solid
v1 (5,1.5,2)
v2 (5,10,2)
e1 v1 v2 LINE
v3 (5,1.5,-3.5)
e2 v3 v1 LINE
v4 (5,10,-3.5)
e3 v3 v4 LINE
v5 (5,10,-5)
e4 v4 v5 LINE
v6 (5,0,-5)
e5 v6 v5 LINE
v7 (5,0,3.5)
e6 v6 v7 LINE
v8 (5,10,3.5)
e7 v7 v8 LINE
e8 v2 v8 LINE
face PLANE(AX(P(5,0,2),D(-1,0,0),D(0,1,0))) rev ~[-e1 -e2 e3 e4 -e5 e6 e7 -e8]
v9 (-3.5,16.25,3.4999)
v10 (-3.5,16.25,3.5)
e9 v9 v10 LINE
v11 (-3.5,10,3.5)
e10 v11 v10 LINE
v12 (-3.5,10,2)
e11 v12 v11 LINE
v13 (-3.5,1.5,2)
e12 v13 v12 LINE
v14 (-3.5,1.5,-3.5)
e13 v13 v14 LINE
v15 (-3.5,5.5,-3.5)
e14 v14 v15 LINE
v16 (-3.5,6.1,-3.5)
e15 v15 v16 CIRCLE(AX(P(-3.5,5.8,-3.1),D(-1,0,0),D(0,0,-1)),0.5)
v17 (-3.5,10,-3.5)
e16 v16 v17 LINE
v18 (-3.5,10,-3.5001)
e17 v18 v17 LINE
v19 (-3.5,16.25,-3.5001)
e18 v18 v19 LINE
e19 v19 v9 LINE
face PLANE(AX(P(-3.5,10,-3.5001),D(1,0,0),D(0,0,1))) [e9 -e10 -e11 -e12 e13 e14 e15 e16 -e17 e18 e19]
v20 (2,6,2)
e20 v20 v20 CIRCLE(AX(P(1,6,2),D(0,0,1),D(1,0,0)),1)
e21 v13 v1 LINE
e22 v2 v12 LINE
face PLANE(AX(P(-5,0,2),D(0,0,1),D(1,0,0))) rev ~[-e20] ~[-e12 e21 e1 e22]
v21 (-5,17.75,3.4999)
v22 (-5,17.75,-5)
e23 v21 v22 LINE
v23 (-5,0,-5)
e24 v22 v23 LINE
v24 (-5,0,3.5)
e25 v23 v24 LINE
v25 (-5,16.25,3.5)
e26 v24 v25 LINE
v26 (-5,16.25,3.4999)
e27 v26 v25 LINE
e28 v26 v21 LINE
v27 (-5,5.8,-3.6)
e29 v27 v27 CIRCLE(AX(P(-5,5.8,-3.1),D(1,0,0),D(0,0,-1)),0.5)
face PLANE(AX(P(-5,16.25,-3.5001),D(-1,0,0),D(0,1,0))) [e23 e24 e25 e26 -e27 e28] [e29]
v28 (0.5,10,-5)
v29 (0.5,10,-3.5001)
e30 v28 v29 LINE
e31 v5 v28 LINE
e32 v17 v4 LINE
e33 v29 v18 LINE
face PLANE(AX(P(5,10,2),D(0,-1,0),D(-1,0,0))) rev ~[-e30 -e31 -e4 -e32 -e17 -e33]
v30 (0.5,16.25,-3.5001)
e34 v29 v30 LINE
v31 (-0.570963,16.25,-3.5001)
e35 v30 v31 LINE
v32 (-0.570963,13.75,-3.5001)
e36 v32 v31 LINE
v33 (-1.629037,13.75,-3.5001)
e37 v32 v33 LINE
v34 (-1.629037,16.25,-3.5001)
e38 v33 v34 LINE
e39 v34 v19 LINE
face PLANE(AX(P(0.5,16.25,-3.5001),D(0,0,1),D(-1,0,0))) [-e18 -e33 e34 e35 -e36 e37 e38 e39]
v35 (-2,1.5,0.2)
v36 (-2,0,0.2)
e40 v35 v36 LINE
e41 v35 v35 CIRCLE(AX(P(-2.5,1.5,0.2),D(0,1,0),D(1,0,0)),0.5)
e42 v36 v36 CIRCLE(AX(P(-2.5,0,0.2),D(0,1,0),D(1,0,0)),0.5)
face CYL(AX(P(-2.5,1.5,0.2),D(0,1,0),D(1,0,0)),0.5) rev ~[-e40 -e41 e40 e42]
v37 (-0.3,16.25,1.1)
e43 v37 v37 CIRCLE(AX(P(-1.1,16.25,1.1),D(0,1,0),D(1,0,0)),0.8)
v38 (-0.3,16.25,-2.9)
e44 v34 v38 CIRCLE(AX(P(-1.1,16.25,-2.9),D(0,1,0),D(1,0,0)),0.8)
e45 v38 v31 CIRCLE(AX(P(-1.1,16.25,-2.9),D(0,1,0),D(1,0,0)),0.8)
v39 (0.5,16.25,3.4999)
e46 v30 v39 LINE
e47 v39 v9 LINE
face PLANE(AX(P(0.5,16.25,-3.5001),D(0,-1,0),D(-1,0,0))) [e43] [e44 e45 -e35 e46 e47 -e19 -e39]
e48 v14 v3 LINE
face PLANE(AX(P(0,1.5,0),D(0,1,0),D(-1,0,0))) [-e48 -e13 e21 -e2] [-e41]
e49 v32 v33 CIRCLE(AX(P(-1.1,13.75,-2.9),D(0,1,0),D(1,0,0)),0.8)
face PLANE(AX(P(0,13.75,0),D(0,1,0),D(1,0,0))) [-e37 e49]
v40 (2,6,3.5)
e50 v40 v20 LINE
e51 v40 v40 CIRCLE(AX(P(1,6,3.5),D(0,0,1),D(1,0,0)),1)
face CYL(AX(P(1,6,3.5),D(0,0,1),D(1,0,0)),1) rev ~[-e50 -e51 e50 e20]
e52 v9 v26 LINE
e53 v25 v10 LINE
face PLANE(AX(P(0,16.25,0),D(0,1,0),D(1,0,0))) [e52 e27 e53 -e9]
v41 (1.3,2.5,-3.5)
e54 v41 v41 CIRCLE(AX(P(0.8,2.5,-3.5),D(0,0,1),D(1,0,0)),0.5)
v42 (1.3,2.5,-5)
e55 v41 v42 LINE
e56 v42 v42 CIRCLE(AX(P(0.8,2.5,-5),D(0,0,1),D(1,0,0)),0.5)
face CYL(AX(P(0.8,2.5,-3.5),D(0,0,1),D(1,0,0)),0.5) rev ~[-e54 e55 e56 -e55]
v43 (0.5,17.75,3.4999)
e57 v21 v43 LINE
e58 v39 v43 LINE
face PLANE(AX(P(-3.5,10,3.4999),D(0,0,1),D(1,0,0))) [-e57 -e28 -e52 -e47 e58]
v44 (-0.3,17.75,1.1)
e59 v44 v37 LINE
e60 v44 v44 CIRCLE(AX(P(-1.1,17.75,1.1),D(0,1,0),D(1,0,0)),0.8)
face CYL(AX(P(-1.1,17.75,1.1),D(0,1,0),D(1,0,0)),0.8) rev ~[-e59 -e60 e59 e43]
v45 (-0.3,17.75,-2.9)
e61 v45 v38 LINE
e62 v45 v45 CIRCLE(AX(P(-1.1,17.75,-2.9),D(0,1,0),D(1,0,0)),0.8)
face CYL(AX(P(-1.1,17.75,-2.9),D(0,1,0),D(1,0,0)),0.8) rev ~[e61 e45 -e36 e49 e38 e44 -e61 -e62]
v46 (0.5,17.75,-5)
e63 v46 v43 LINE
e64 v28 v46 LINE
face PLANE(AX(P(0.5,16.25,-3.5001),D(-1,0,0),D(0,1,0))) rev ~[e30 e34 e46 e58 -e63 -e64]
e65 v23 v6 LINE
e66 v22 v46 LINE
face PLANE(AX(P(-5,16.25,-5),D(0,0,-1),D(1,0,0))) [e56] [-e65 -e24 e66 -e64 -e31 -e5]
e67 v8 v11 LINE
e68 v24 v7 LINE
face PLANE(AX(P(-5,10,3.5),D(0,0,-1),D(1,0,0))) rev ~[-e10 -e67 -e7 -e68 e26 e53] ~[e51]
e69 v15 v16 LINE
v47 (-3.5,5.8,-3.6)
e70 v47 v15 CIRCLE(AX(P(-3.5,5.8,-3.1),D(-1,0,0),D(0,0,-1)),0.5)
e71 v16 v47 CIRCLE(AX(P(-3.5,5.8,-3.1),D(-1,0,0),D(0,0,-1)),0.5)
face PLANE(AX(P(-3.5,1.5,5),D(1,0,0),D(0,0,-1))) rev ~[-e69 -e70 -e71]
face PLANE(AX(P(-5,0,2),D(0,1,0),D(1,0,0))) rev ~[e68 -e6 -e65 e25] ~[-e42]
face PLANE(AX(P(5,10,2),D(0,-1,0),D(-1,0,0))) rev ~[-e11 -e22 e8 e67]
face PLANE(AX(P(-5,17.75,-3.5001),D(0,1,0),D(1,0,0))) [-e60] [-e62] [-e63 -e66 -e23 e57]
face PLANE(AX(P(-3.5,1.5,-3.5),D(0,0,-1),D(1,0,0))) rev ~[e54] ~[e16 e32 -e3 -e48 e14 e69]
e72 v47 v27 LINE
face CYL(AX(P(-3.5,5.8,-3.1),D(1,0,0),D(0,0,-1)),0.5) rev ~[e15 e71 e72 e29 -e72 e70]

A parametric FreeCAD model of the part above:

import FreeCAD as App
import Part
import Sketcher

V = App.Vector
Q = App.Units.Quantity


def add_polygon(sketch, points):
    """Adds a closed chain of lines whose ends are joined by coincident constraints."""
    first, n = sketch.GeometryCount, len(points)
    for a, b in zip(points, points[1:] + points[:1]):
        sketch.addGeometry(Part.LineSegment(App.Vector(*a, 0), App.Vector(*b, 0)), False)
    for i in range(n):
        sketch.addConstraint(Sketcher.Constraint("Coincident", first + i, 2, first + (i + 1) % n, 1))

doc = App.newDocument("Part")
params = doc.addObject("Spreadsheet::Sheet", "Params")
for row, (alias, value) in enumerate([
    ("sketch1_width", "10 mm"),
    ("pad1_length", "1.5 mm"),
    ("sketch2_width", "10 mm"),
    ("sketch2_width2", "1.5 mm"),
    ("pad2_length", "8.5 mm"),
    ("sketch3_diameter", "1 mm"),
    ("pocket1_length", "8.5 mm"),
    ("sketch4_diameter", "1 mm"),
    ("pocket2_length", "8.5 mm"),
    ("sketch5_diameter", "1 mm"),
    ("pocket3_length", "10 mm"),
    ("sketch6_diameter", "1 mm"),
    ("pocket4_length", "2 mm"),
    ("sketch7_width", "10 mm"),
    ("pocket5_length", "3 mm"),
    ("sketch8_width", "10 mm"),
    ("pad3_length", "1.5 mm"),
    ("sketch9_diameter", "2 mm"),
    ("pocket6_length", "1.5 mm"),
    ("sketch10_width", "5.5 mm"),
    ("sketch10_width2", "1.5 mm"),
    ("sketch10_height", "7 mm"),
    ("pad4_length", "6.25 mm"),
    ("sketch11_width", "5.5 mm"),
    ("sketch11_height", "1.5 mm"),
    ("pad5_length", "1.5 mm"),
    ("sketch12_height", "1.5 mm"),
    ("sketch12_width", "5.5 mm"),
    ("pad6_length", "7 mm"),
    ("sketch13_diameter", "1.6 mm"),
    ("pocket7_length", "2 mm"),
    ("sketch14_diameter", "1.6 mm"),
    ("pocket8_length", "4 mm"),
], start=1):
    params.set(f"A{row}", alias)
    params.set(f"B{row}", "=" + value)
    params.setAlias(f"B{row}", alias)

body = doc.addObject("PartDesign::Body", "Body")

# Sketch on XZ plane
sketch1 = body.newObject("Sketcher::SketchObject", "Sketch")
sketch1.AttachmentSupport = (doc.getObject("XZ_Plane"), [""])
sketch1.MapMode = "FlatFace"
add_polygon(sketch1, [(-5, 5), (5, 5), (5, -5), (-5, -5)])  # lines 0-3
sketch1.addConstraint(Sketcher.Constraint("Horizontal", 0))
sketch1.addConstraint(Sketcher.Constraint("Vertical", 1))
sketch1.addConstraint(Sketcher.Constraint("Horizontal", 2))
sketch1.addConstraint(Sketcher.Constraint("Vertical", 3))
sketch1.addConstraint(Sketcher.Constraint("Symmetric", 0, 2, 2, 2, -1, 1))
sketch1.addConstraint(Sketcher.Constraint("Equal", 2, 1))
sketch1.addConstraint(Sketcher.Constraint("DistanceX", 0, 1, 0, 2, Q("10 mm")))
sketch1.setExpression("Constraints[10]", "Params.sketch1_width")
pad1 = body.newObject("PartDesign::Pad", "Pad")
pad1.Profile = sketch1
pad1.setExpression("Length", "Params.pad1_length")
pad1.Reversed = True

# Sketch on XZ plane
sketch2 = body.newObject("Sketcher::SketchObject", "Sketch001")
sketch2.AttachmentSupport = (doc.getObject("XZ_Plane"), [""])
sketch2.MapMode = "FlatFace"
sketch2.AttachmentOffset = App.Placement(V(0, 0, -1.5), App.Rotation())
add_polygon(sketch2, [(-5, -5), (-5, 5), (-3.5, 5), (-3.5, -3.5), (5, -3.5), (5, -5)])  # lines 0-5
sketch2.addConstraint(Sketcher.Constraint("Vertical", 0))
sketch2.addConstraint(Sketcher.Constraint("Horizontal", 1))
sketch2.addConstraint(Sketcher.Constraint("Vertical", 2))
sketch2.addConstraint(Sketcher.Constraint("Horizontal", 3))
sketch2.addConstraint(Sketcher.Constraint("Vertical", 4))
sketch2.addConstraint(Sketcher.Constraint("Horizontal", 5))
sketch2.addConstraint(Sketcher.Constraint("Symmetric", 0, 2, 4, 2, -1, 1))
sketch2.addConstraint(Sketcher.Constraint("Equal", 5, 0))
sketch2.addConstraint(Sketcher.Constraint("Equal", 3, 2))
sketch2.addConstraint(Sketcher.Constraint("DistanceX", 5, 2, 5, 1, Q("10 mm")))
sketch2.addConstraint(Sketcher.Constraint("DistanceX", 1, 1, 1, 2, Q("1.5 mm")))
sketch2.setExpression("Constraints[15]", "Params.sketch2_width")
sketch2.setExpression("Constraints[16]", "Params.sketch2_width2")
pad2 = body.newObject("PartDesign::Pad", "Pad001")
pad2.Profile = sketch2
pad2.setExpression("Length", "Params.pad2_length")
pad2.Reversed = True

# Sketch on XZ plane
sketch3 = body.newObject("Sketcher::SketchObject", "Sketch002")
sketch3.AttachmentSupport = (doc.getObject("XZ_Plane"), [""])
sketch3.MapMode = "FlatFace"
sketch3.AttachmentOffset = App.Placement(V(0, 0, -1.5), App.Rotation())
sketch3.addGeometry(Part.Circle(V(-2.5, 0.2, 0), V(0, 0, 1), 0.5), False)
sketch3.addConstraint(Sketcher.Constraint("Diameter", 0, Q("1 mm")))
sketch3.addConstraint(Sketcher.Constraint("DistanceX", 0, 3, -1, 1, Q("2.5 mm")))
sketch3.addConstraint(Sketcher.Constraint("DistanceY", -1, 1, 0, 3, Q("0.2 mm")))
sketch3.setExpression("Constraints[0]", "Params.sketch3_diameter")
pocket1 = body.newObject("PartDesign::Pocket", "Pocket")
pocket1.Profile = sketch3
pocket1.setExpression("Length", "Params.pocket1_length")
pocket1.Reversed = True

# Sketch on XY plane
sketch4 = body.newObject("Sketcher::SketchObject", "Sketch003")
sketch4.AttachmentSupport = (doc.getObject("XY_Plane"), [""])
sketch4.MapMode = "FlatFace"
sketch4.AttachmentOffset = App.Placement(V(0, 0, -3.5), App.Rotation())
sketch4.addGeometry(Part.Circle(V(0.8, 2.5, 0), V(0, 0, 1), 0.5), False)
sketch4.addConstraint(Sketcher.Constraint("Diameter", 0, Q("1 mm")))
sketch4.addConstraint(Sketcher.Constraint("DistanceX", -1, 1, 0, 3, Q("0.8 mm")))
sketch4.addConstraint(Sketcher.Constraint("DistanceY", -1, 1, 0, 3, Q("2.5 mm")))
sketch4.setExpression("Constraints[0]", "Params.sketch4_diameter")
pocket2 = body.newObject("PartDesign::Pocket", "Pocket001")
pocket2.Profile = sketch4
pocket2.setExpression("Length", "Params.pocket2_length")

# Sketch on XZ plane
sketch5 = body.newObject("Sketcher::SketchObject", "Sketch004")
sketch5.AttachmentSupport = (doc.getObject("XZ_Plane"), [""])
sketch5.MapMode = "FlatFace"
sketch5.addGeometry(Part.Circle(V(-2.5, 0.2, 0), V(0, 0, 1), 0.5), False)
sketch5.addConstraint(Sketcher.Constraint("Diameter", 0, Q("1 mm")))
sketch5.addConstraint(Sketcher.Constraint("DistanceX", 0, 3, -1, 1, Q("2.5 mm")))
sketch5.addConstraint(Sketcher.Constraint("DistanceY", -1, 1, 0, 3, Q("0.2 mm")))
sketch5.setExpression("Constraints[0]", "Params.sketch5_diameter")
pocket3 = body.newObject("PartDesign::Pocket", "Pocket002")
pocket3.Profile = sketch5
pocket3.setExpression("Length", "Params.pocket3_length")

# Sketch on YZ plane
sketch6 = body.newObject("Sketcher::SketchObject", "Sketch005")
sketch6.AttachmentSupport = (doc.getObject("YZ_Plane"), [""])
sketch6.MapMode = "FlatFace"
sketch6.AttachmentOffset = App.Placement(V(0, 0, -3.5), App.Rotation())
sketch6.addGeometry(Part.Circle(V(5.8, -3.1, 0), V(0, 0, 1), 0.5), False)
sketch6.addConstraint(Sketcher.Constraint("Diameter", 0, Q("1 mm")))
sketch6.addConstraint(Sketcher.Constraint("DistanceX", -1, 1, 0, 3, Q("5.8 mm")))
sketch6.addConstraint(Sketcher.Constraint("DistanceY", 0, 3, -1, 1, Q("3.1 mm")))
sketch6.setExpression("Constraints[0]", "Params.sketch6_diameter")
pocket4 = body.newObject("PartDesign::Pocket", "Pocket003")
pocket4.Profile = sketch6
pocket4.setExpression("Length", "Params.pocket4_length")

# Sketch on XY plane
sketch7 = body.newObject("Sketcher::SketchObject", "Sketch006")
sketch7.AttachmentSupport = (doc.getObject("XY_Plane"), [""])
sketch7.MapMode = "FlatFace"
sketch7.AttachmentOffset = App.Placement(V(0, 0, 5), App.Rotation())
add_polygon(sketch7, [(-5, 10), (-5, 0), (5, 0), (5, 10)])  # lines 0-3
sketch7.addConstraint(Sketcher.Constraint("Vertical", 0))
sketch7.addConstraint(Sketcher.Constraint("Horizontal", 1))
sketch7.addConstraint(Sketcher.Constraint("Vertical", 2))
sketch7.addConstraint(Sketcher.Constraint("Horizontal", 3))
sketch7.addConstraint(Sketcher.Constraint("Symmetric", 0, 2, 1, 2, -1, 1))
sketch7.addConstraint(Sketcher.Constraint("Equal", 3, 0))
sketch7.addConstraint(Sketcher.Constraint("DistanceX", 1, 1, 1, 2, Q("10 mm")))
sketch7.setExpression("Constraints[10]", "Params.sketch7_width")
pocket5 = body.newObject("PartDesign::Pocket", "Pocket004")
pocket5.Profile = sketch7
pocket5.setExpression("Length", "Params.pocket5_length")

# Sketch on XY plane
sketch8 = body.newObject("Sketcher::SketchObject", "Sketch007")
sketch8.AttachmentSupport = (doc.getObject("XY_Plane"), [""])
sketch8.MapMode = "FlatFace"
sketch8.AttachmentOffset = App.Placement(V(0, 0, 2), App.Rotation())
add_polygon(sketch8, [(-5, 10), (-5, 0), (5, 0), (5, 10)])  # lines 0-3
sketch8.addConstraint(Sketcher.Constraint("Vertical", 0))
sketch8.addConstraint(Sketcher.Constraint("Horizontal", 1))
sketch8.addConstraint(Sketcher.Constraint("Vertical", 2))
sketch8.addConstraint(Sketcher.Constraint("Horizontal", 3))
sketch8.addConstraint(Sketcher.Constraint("Symmetric", 0, 2, 1, 2, -1, 1))
sketch8.addConstraint(Sketcher.Constraint("Equal", 3, 0))
sketch8.addConstraint(Sketcher.Constraint("DistanceX", 1, 1, 1, 2, Q("10 mm")))
sketch8.setExpression("Constraints[10]", "Params.sketch8_width")
pad3 = body.newObject("PartDesign::Pad", "Pad002")
pad3.Profile = sketch8
pad3.setExpression("Length", "Params.pad3_length")

# Sketch on XY plane
sketch9 = body.newObject("Sketcher::SketchObject", "Sketch008")
sketch9.AttachmentSupport = (doc.getObject("XY_Plane"), [""])
sketch9.MapMode = "FlatFace"
sketch9.AttachmentOffset = App.Placement(V(0, 0, 3.5), App.Rotation())
sketch9.addGeometry(Part.Circle(V(1, 6, 0), V(0, 0, 1), 1), False)
sketch9.addConstraint(Sketcher.Constraint("Diameter", 0, Q("2 mm")))
sketch9.addConstraint(Sketcher.Constraint("DistanceY", -1, 1, 0, 3, Q("6 mm")))
sketch9.addConstraint(Sketcher.Constraint("DistanceX", -1, 1, 0, 3, Q("1 mm")))
sketch9.setExpression("Constraints[0]", "Params.sketch9_diameter")
pocket6 = body.newObject("PartDesign::Pocket", "Pocket005")
pocket6.Profile = sketch9
pocket6.setExpression("Length", "Params.pocket6_length")

# Sketch on XZ plane
sketch10 = body.newObject("Sketcher::SketchObject", "Sketch009")
sketch10.AttachmentSupport = (doc.getObject("XZ_Plane"), [""])
sketch10.MapMode = "FlatFace"
sketch10.AttachmentOffset = App.Placement(V(0, 0, -10), App.Rotation())
add_polygon(sketch10, [(0.5, -5), (-5, -5), (-5, 3.5), (-3.5, 3.5), (-3.5, -3.5), (0.5, -3.5)])  # lines 0-5
sketch10.addConstraint(Sketcher.Constraint("Horizontal", 0))
sketch10.addConstraint(Sketcher.Constraint("Vertical", 1))
sketch10.addConstraint(Sketcher.Constraint("Horizontal", 2))
sketch10.addConstraint(Sketcher.Constraint("Vertical", 3))
sketch10.addConstraint(Sketcher.Constraint("Horizontal", 4))
sketch10.addConstraint(Sketcher.Constraint("Vertical", 5))
sketch10.addConstraint(Sketcher.Constraint("Equal", 2, 5))
sketch10.addConstraint(Sketcher.Constraint("DistanceX", 0, 2, 0, 1, Q("5.5 mm")))
sketch10.addConstraint(Sketcher.Constraint("DistanceX", 2, 1, 2, 2, Q("1.5 mm")))
sketch10.addConstraint(Sketcher.Constraint("DistanceY", 3, 2, 3, 1, Q("7 mm")))
sketch10.addConstraint(Sketcher.Constraint("DistanceX", 0, 2, -1, 1, Q("5 mm")))
sketch10.addConstraint(Sketcher.Constraint("DistanceY", 0, 2, -1, 1, Q("5 mm")))
sketch10.setExpression("Constraints[13]", "Params.sketch10_width")
sketch10.setExpression("Constraints[14]", "Params.sketch10_width2")
sketch10.setExpression("Constraints[15]", "Params.sketch10_height")
pad4 = body.newObject("PartDesign::Pad", "Pad003")
pad4.Profile = sketch10
pad4.setExpression("Length", "Params.pad4_length")
pad4.Reversed = True

# Sketch on XZ plane
sketch11 = body.newObject("Sketcher::SketchObject", "Sketch010")
sketch11.AttachmentSupport = (doc.getObject("XZ_Plane"), [""])
sketch11.MapMode = "FlatFace"
sketch11.AttachmentOffset = App.Placement(V(0, 0, -16.25), App.Rotation())
add_polygon(sketch11, [(-5, -3.5), (0.5, -3.5), (0.5, -5), (-5, -5)])  # lines 0-3
sketch11.addConstraint(Sketcher.Constraint("Horizontal", 0))
sketch11.addConstraint(Sketcher.Constraint("Vertical", 1))
sketch11.addConstraint(Sketcher.Constraint("Horizontal", 2))
sketch11.addConstraint(Sketcher.Constraint("Vertical", 3))
sketch11.addConstraint(Sketcher.Constraint("DistanceX", 0, 1, 0, 2, Q("5.5 mm")))
sketch11.addConstraint(Sketcher.Constraint("DistanceY", 1, 2, 1, 1, Q("1.5 mm")))
sketch11.addConstraint(Sketcher.Constraint("DistanceY", 1, 2, -1, 1, Q("5 mm")))
sketch11.addConstraint(Sketcher.Constraint("DistanceX", 2, 2, -1, 1, Q("5 mm")))
sketch11.setExpression("Constraints[8]", "Params.sketch11_width")
sketch11.setExpression("Constraints[9]", "Params.sketch11_height")
pad5 = body.newObject("PartDesign::Pad", "Pad004")
pad5.Profile = sketch11
pad5.setExpression("Length", "Params.pad5_length")
pad5.Reversed = True

# Sketch on XY plane
sketch12 = body.newObject("Sketcher::SketchObject", "Sketch011")
sketch12.AttachmentSupport = (doc.getObject("XY_Plane"), [""])
sketch12.MapMode = "FlatFace"
sketch12.AttachmentOffset = App.Placement(V(0, 0, -3.5001), App.Rotation())
add_polygon(sketch12, [(-5, 16.2), (0.5, 16.2), (0.5, 17.8), (-5, 17.8)])  # lines 0-3
sketch12.addConstraint(Sketcher.Constraint("Horizontal", 0))
sketch12.addConstraint(Sketcher.Constraint("Vertical", 1))
sketch12.addConstraint(Sketcher.Constraint("Horizontal", 2))
sketch12.addConstraint(Sketcher.Constraint("Vertical", 3))
sketch12.addConstraint(Sketcher.Constraint("DistanceY", 1, 1, 1, 2, Q("1.5 mm")))
sketch12.addConstraint(Sketcher.Constraint("DistanceX", 0, 1, 0, 2, Q("5.5 mm")))
sketch12.addConstraint(Sketcher.Constraint("DistanceX", 2, 2, -1, 1, Q("5 mm")))
sketch12.addConstraint(Sketcher.Constraint("DistanceY", -1, 1, 0, 2, Q("16.25 mm")))
sketch12.setExpression("Constraints[8]", "Params.sketch12_height")
sketch12.setExpression("Constraints[9]", "Params.sketch12_width")
pad6 = body.newObject("PartDesign::Pad", "Pad005")
pad6.Profile = sketch12
pad6.setExpression("Length", "Params.pad6_length")

# Sketch on XZ plane
sketch13 = body.newObject("Sketcher::SketchObject", "Sketch012")
sketch13.AttachmentSupport = (doc.getObject("XZ_Plane"), [""])
sketch13.MapMode = "FlatFace"
sketch13.AttachmentOffset = App.Placement(V(0, 0, -17.75), App.Rotation())
sketch13.addGeometry(Part.Circle(V(-1.1, 1.1, 0), V(0, 0, 1), 0.8), False)
sketch13.addConstraint(Sketcher.Constraint("Diameter", 0, Q("1.6 mm")))
sketch13.addConstraint(Sketcher.Constraint("DistanceX", 0, 3, -1, 1, Q("1.1 mm")))
sketch13.addConstraint(Sketcher.Constraint("DistanceY", -1, 1, 0, 3, Q("1.1 mm")))
sketch13.setExpression("Constraints[0]", "Params.sketch13_diameter")
pocket7 = body.newObject("PartDesign::Pocket", "Pocket006")
pocket7.Profile = sketch13
pocket7.setExpression("Length", "Params.pocket7_length")
pocket7.Reversed = True

# Sketch on XZ plane
sketch14 = body.newObject("Sketcher::SketchObject", "Sketch013")
sketch14.AttachmentSupport = (doc.getObject("XZ_Plane"), [""])
sketch14.MapMode = "FlatFace"
sketch14.AttachmentOffset = App.Placement(V(0, 0, -17.75), App.Rotation())
sketch14.addGeometry(Part.Circle(V(-1.1, -2.9, 0), V(0, 0, 1), 0.8), False)
sketch14.addConstraint(Sketcher.Constraint("Diameter", 0, Q("1.6 mm")))
sketch14.addConstraint(Sketcher.Constraint("DistanceX", 0, 3, -1, 1, Q("1.1 mm")))
sketch14.addConstraint(Sketcher.Constraint("DistanceY", 0, 3, -1, 1, Q("2.9 mm")))
sketch14.setExpression("Constraints[0]", "Params.sketch14_diameter")
pocket8 = body.newObject("PartDesign::Pocket", "Pocket007")
pocket8.Profile = sketch14
pocket8.setExpression("Length", "Params.pocket8_length")
pocket8.Reversed = True

doc.recompute()
